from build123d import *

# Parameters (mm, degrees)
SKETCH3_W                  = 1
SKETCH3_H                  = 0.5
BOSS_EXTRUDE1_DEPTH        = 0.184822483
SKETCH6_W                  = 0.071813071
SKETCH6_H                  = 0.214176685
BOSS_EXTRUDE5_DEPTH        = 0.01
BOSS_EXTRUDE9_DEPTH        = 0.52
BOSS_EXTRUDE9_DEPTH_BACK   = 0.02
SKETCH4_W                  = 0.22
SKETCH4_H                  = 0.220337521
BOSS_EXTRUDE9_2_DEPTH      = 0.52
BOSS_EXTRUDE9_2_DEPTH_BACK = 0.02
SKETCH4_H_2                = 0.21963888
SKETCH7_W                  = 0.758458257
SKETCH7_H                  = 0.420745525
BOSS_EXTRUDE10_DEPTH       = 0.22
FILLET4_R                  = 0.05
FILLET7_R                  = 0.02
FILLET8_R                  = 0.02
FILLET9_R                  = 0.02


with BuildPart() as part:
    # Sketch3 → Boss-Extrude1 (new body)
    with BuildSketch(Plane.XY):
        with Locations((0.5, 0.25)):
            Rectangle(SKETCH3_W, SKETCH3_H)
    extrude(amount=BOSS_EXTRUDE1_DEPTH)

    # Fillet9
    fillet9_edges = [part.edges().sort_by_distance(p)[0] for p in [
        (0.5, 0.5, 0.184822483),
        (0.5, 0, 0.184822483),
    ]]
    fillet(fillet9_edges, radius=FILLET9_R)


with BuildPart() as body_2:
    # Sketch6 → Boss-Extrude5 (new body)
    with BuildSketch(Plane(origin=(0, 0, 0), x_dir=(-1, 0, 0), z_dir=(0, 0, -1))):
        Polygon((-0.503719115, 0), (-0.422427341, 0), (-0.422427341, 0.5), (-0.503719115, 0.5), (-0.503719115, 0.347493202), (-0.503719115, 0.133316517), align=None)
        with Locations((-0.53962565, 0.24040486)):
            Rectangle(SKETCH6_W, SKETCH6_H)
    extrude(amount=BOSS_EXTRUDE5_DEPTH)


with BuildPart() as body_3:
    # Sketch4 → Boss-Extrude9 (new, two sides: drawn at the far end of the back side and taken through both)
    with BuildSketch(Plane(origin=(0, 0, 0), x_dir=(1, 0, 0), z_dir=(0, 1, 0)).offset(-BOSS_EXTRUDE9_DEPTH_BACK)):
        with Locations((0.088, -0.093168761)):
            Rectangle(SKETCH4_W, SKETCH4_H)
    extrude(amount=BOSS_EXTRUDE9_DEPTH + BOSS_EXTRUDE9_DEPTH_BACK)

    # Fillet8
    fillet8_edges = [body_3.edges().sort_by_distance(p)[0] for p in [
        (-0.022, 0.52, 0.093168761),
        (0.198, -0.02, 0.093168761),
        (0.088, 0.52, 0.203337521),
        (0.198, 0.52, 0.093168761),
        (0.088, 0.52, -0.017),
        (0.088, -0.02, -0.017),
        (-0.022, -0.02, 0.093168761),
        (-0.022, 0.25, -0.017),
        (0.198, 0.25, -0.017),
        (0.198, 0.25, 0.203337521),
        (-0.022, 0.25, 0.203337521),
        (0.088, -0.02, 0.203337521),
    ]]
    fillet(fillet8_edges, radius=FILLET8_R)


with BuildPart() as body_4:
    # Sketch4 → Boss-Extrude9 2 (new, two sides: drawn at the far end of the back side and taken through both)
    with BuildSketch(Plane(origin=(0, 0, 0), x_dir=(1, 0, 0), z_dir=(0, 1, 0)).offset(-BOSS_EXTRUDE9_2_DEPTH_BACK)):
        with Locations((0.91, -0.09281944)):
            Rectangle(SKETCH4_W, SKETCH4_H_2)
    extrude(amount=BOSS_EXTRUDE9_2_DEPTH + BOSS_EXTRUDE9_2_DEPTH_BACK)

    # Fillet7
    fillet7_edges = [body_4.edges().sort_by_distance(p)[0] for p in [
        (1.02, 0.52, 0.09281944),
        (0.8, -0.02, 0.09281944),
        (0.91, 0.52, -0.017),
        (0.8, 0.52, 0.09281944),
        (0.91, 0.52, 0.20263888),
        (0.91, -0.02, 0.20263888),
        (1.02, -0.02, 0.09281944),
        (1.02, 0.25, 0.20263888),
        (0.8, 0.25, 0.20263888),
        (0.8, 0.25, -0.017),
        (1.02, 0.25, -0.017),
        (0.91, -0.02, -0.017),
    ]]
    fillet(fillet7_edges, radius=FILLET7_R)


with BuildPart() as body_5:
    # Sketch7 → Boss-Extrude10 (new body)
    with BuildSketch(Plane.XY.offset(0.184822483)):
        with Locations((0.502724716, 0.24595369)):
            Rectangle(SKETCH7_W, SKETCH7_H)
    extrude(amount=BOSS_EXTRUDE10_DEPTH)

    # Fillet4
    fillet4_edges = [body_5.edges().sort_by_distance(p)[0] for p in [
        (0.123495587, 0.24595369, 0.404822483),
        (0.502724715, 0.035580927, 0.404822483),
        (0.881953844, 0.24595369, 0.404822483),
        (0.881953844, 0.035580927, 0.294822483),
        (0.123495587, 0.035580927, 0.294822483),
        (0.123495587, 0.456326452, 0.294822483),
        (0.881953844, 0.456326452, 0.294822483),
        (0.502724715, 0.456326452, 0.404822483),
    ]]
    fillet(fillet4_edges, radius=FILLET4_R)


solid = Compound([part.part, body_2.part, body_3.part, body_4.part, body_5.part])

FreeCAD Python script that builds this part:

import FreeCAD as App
import Part
import Sketcher
from FreeCAD import Vector


def edges_at(feature, points):
    """Names of the edges that pass closest to the given points."""
    edges = feature.Shape.Edges
    near = lambda p: min(range(len(edges)), key=lambda i: edges[i].distToShape(Part.Vertex(*p))[0])
    return sorted({f"Edge{near(p) + 1}" for p in points})

doc = App.newDocument("Part")
body = doc.addObject("PartDesign::Body", "Body")

# Sketch on XY plane
sketch1 = doc.addObject("Sketcher::SketchObject", "Sketch")
body.addObject(sketch1)
sketch1.AttachmentSupport = (doc.XY_Plane, [""])
sketch1.MapMode = "FlatFace"
sketch1.addGeometry(Part.LineSegment(Vector(0, 0.5, 0), Vector(0, 0, 0)), False)
sketch1.addGeometry(Part.LineSegment(Vector(0, 0, 0), Vector(1, 0, 0)), False)
sketch1.addGeometry(Part.LineSegment(Vector(1, 0, 0), Vector(1, 0.5, 0)), False)
sketch1.addGeometry(Part.LineSegment(Vector(1, 0.5, 0), Vector(0, 0.5, 0)), False)
sketch1.addConstraint(Sketcher.Constraint("Coincident", 0, 2, 1, 1))
sketch1.addConstraint(Sketcher.Constraint("Coincident", 1, 2, 2, 1))
sketch1.addConstraint(Sketcher.Constraint("Coincident", 2, 2, 3, 1))
sketch1.addConstraint(Sketcher.Constraint("Coincident", 3, 2, 0, 1))
sketch1.addConstraint(Sketcher.Constraint("Vertical", 0))
sketch1.addConstraint(Sketcher.Constraint("Horizontal", 1))
sketch1.addConstraint(Sketcher.Constraint("Vertical", 2))
sketch1.addConstraint(Sketcher.Constraint("Horizontal", 3))
sketch1.addConstraint(Sketcher.Constraint("Coincident", 0, 2, -1, 1))
sketch1.addConstraint(Sketcher.Constraint("DistanceX", 1, 1, 1, 2, 1.0))
sketch1.addConstraint(Sketcher.Constraint("DistanceY", 0, 2, 0, 1, 0.5))
pad1 = doc.addObject("PartDesign::Pad", "Pad")
body.addObject(pad1)
pad1.Profile = sketch1
pad1.Length = 0.184822
doc.recompute()

fillet = doc.addObject("PartDesign::Fillet", "Fillet")
body.addObject(fillet)
fillet.Base = (pad1, edges_at(pad1, [(0.5, 0.5, 0.185), (0.5, 0, 0.185)]))
fillet.Radius = 0.02
body2 = doc.addObject("PartDesign::Body", "Body001")

# Sketch on XY plane
sketch2 = doc.addObject("Sketcher::SketchObject", "Sketch001")
body2.addObject(sketch2)
sketch2.AttachmentSupport = (doc.getObject("XY_Plane001"), [""])
sketch2.MapMode = "FlatFace"
sketch2.addGeometry(Part.LineSegment(Vector(0.5, 0, 0), Vector(0.42, 0, 0)), False)
sketch2.addGeometry(Part.LineSegment(Vector(0.42, 0, 0), Vector(0.42, 0.5, 0)), False)
sketch2.addGeometry(Part.LineSegment(Vector(0.42, 0.5, 0), Vector(0.5, 0.5, 0)), False)
sketch2.addGeometry(Part.LineSegment(Vector(0.5, 0.5, 0), Vector(0.5, 0.35, 0)), False)
sketch2.addGeometry(Part.LineSegment(Vector(0.5, 0.35, 0), Vector(0.58, 0.35, 0)), False)
sketch2.addGeometry(Part.LineSegment(Vector(0.58, 0.35, 0), Vector(0.58, 0.13, 0)), False)
sketch2.addGeometry(Part.LineSegment(Vector(0.58, 0.13, 0), Vector(0.5, 0.13, 0)), False)
sketch2.addGeometry(Part.LineSegment(Vector(0.5, 0.13, 0), Vector(0.5, 0, 0)), False)
sketch2.addConstraint(Sketcher.Constraint("Coincident", 0, 2, 1, 1))
sketch2.addConstraint(Sketcher.Constraint("Coincident", 1, 2, 2, 1))
sketch2.addConstraint(Sketcher.Constraint("Coincident", 2, 2, 3, 1))
sketch2.addConstraint(Sketcher.Constraint("Coincident", 3, 2, 4, 1))
sketch2.addConstraint(Sketcher.Constraint("Coincident", 4, 2, 5, 1))
sketch2.addConstraint(Sketcher.Constraint("Coincident", 5, 2, 6, 1))
sketch2.addConstraint(Sketcher.Constraint("Coincident", 6, 2, 7, 1))
sketch2.addConstraint(Sketcher.Constraint("Coincident", 7, 2, 0, 1))
sketch2.addConstraint(Sketcher.Constraint("Horizontal", 0))
sketch2.addConstraint(Sketcher.Constraint("Vertical", 1))
sketch2.addConstraint(Sketcher.Constraint("Horizontal", 2))
sketch2.addConstraint(Sketcher.Constraint("Vertical", 3))
sketch2.addConstraint(Sketcher.Constraint("Horizontal", 4))
sketch2.addConstraint(Sketcher.Constraint("Vertical", 5))
sketch2.addConstraint(Sketcher.Constraint("Horizontal", 6))
sketch2.addConstraint(Sketcher.Constraint("Vertical", 7))
sketch2.addConstraint(Sketcher.Constraint("PointOnObject", 0, 2, -1))
sketch2.addConstraint(Sketcher.Constraint("Vertical", 3, 2, 6, 2))
sketch2.addConstraint(Sketcher.Constraint("DistanceY", 1, 1, 1, 2, 0.5))
sketch2.addConstraint(Sketcher.Constraint("DistanceX", 0, 2, 0, 1, 0.081292))
sketch2.addConstraint(Sketcher.Constraint("DistanceX", 4, 1, 4, 2, 0.071813))
sketch2.addConstraint(Sketcher.Constraint("DistanceY", 3, 2, 3, 1, 0.152507))
sketch2.addConstraint(Sketcher.Constraint("DistanceY", 5, 2, 5, 1, 0.214177))
sketch2.addConstraint(Sketcher.Constraint("DistanceX", -1, 1, 2, 2, 0.503719))
pad2 = doc.addObject("PartDesign::Pad", "Pad001")
body2.addObject(pad2)
pad2.Profile = sketch2
pad2.Length = 0.01
pad2.Reversed = True
body3 = doc.addObject("PartDesign::Body", "Body002")

# Sketch on XZ plane
sketch3 = doc.addObject("Sketcher::SketchObject", "Sketch002")
body3.addObject(sketch3)
sketch3.AttachmentSupport = (doc.getObject("XZ_Plane002"), [""])
sketch3.MapMode = "FlatFace"
sketch3.addGeometry(Part.LineSegment(Vector(-0.02, -0.02, 0), Vector(-0.02, 0.2, 0)), False)
sketch3.addGeometry(Part.LineSegment(Vector(-0.02, 0.2, 0), Vector(0.2, 0.2, 0)), False)
sketch3.addGeometry(Part.LineSegment(Vector(0.2, 0.2, 0), Vector(0.2, -0.02, 0)), False)
sketch3.addGeometry(Part.LineSegment(Vector(0.2, -0.02, 0), Vector(-0.02, -0.02, 0)), False)
sketch3.addConstraint(Sketcher.Constraint("Coincident", 0, 2, 1, 1))
sketch3.addConstraint(Sketcher.Constraint("Coincident", 1, 2, 2, 1))
sketch3.addConstraint(Sketcher.Constraint("Coincident", 2, 2, 3, 1))
sketch3.addConstraint(Sketcher.Constraint("Coincident", 3, 2, 0, 1))
sketch3.addConstraint(Sketcher.Constraint("Vertical", 0))
sketch3.addConstraint(Sketcher.Constraint("Horizontal", 1))
sketch3.addConstraint(Sketcher.Constraint("Vertical", 2))
sketch3.addConstraint(Sketcher.Constraint("Horizontal", 3))
sketch3.addConstraint(Sketcher.Constraint("DistanceX", 1, 1, 1, 2, 0.22))
sketch3.addConstraint(Sketcher.Constraint("DistanceX", 0, 2, -1, 1, 0.022))
sketch3.addConstraint(Sketcher.Constraint("DistanceY", 2, 2, -1, 1, 0.017))
sketch3.addConstraint(Sketcher.Constraint("DistanceY", 0, 1, 0, 2, 0.220338))
pad3 = doc.addObject("PartDesign::Pad", "Pad002")
body3.addObject(pad3)
pad3.Profile = sketch3
pad3.Type = "TwoLengths"
pad3.Length = 0.52
pad3.Length2 = 0.02
pad3.Reversed = True
doc.recompute()

fillet2 = doc.addObject("PartDesign::Fillet", "Fillet001")
body3.addObject(fillet2)
fillet2.Base = (pad3, ["Edge1"])
fillet2.UseAllEdges = True
fillet2.Radius = 0.02
body4 = doc.addObject("PartDesign::Body", "Body003")

# Sketch on XZ plane
sketch4 = doc.addObject("Sketcher::SketchObject", "Sketch003")
body4.addObject(sketch4)
sketch4.AttachmentSupport = (doc.getObject("XZ_Plane003"), [""])
sketch4.MapMode = "FlatFace"
sketch4.addGeometry(Part.LineSegment(Vector(0.8, -0.02, 0), Vector(0.8, 0.2, 0)), False)
sketch4.addGeometry(Part.LineSegment(Vector(0.8, 0.2, 0), Vector(1.02, 0.2, 0)), False)
sketch4.addGeometry(Part.LineSegment(Vector(1.02, 0.2, 0), Vector(1.02, -0.02, 0)), False)
sketch4.addGeometry(Part.LineSegment(Vector(1.02, -0.02, 0), Vector(0.8, -0.02, 0)), False)
sketch4.addConstraint(Sketcher.Constraint("Coincident", 0, 2, 1, 1))
sketch4.addConstraint(Sketcher.Constraint("Coincident", 1, 2, 2, 1))
sketch4.addConstraint(Sketcher.Constraint("Coincident", 2, 2, 3, 1))
sketch4.addConstraint(Sketcher.Constraint("Coincident", 3, 2, 0, 1))
sketch4.addConstraint(Sketcher.Constraint("Vertical", 0))
sketch4.addConstraint(Sketcher.Constraint("Horizontal", 1))
sketch4.addConstraint(Sketcher.Constraint("Vertical", 2))
sketch4.addConstraint(Sketcher.Constraint("Horizontal", 3))
sketch4.addConstraint(Sketcher.Constraint("DistanceX", 1, 1, 1, 2, 0.22))
sketch4.addConstraint(Sketcher.Constraint("DistanceX", -1, 1, 0, 2, 0.8))
sketch4.addConstraint(Sketcher.Constraint("DistanceY", 2, 2, -1, 1, 0.017))
sketch4.addConstraint(Sketcher.Constraint("DistanceY", 0, 1, 0, 2, 0.219639))
pad4 = doc.addObject("PartDesign::Pad", "Pad003")
body4.addObject(pad4)
pad4.Profile = sketch4
pad4.Type = "TwoLengths"
pad4.Length = 0.52
pad4.Length2 = 0.02
pad4.Reversed = True
doc.recompute()

fillet3 = doc.addObject("PartDesign::Fillet", "Fillet002")
body4.addObject(fillet3)
fillet3.Base = (pad4, ["Edge1"])
fillet3.UseAllEdges = True
fillet3.Radius = 0.02
body5 = doc.addObject("PartDesign::Body", "Body004")

# Sketch on XY plane
sketch5 = doc.addObject("Sketcher::SketchObject", "Sketch004")
body5.addObject(sketch5)
sketch5.AttachmentSupport = (doc.getObject("XY_Plane004"), [""])
sketch5.MapMode = "FlatFace"
sketch5.AttachmentOffset = App.Placement(Vector(0, 0, 0.184822), App.Rotation())
sketch5.addGeometry(Part.LineSegment(Vector(0.12, 0.46, 0), Vector(0.12, 0.04, 0)), False)
sketch5.addGeometry(Part.LineSegment(Vector(0.12, 0.04, 0), Vector(0.88, 0.04, 0)), False)
sketch5.addGeometry(Part.LineSegment(Vector(0.88, 0.04, 0), Vector(0.88, 0.46, 0)), False)
sketch5.addGeometry(Part.LineSegment(Vector(0.88, 0.46, 0), Vector(0.12, 0.46, 0)), False)
sketch5.addConstraint(Sketcher.Constraint("Coincident", 0, 2, 1, 1))
sketch5.addConstraint(Sketcher.Constraint("Coincident", 1, 2, 2, 1))
sketch5.addConstraint(Sketcher.Constraint("Coincident", 2, 2, 3, 1))
sketch5.addConstraint(Sketcher.Constraint("Coincident", 3, 2, 0, 1))
sketch5.addConstraint(Sketcher.Constraint("Vertical", 0))
sketch5.addConstraint(Sketcher.Constraint("Horizontal", 1))
sketch5.addConstraint(Sketcher.Constraint("Vertical", 2))
sketch5.addConstraint(Sketcher.Constraint("Horizontal", 3))
sketch5.addConstraint(Sketcher.Constraint("DistanceX", 1, 1, 1, 2, 0.758458))
sketch5.addConstraint(Sketcher.Constraint("DistanceY", 0, 2, 0, 1, 0.420746))
sketch5.addConstraint(Sketcher.Constraint("DistanceY", -1, 1, 0, 2, 0.035581))
sketch5.addConstraint(Sketcher.Constraint("DistanceX", -1, 1, 0, 2, 0.123496))
pad5 = doc.addObject("PartDesign::Pad", "Pad004")
body5.addObject(pad5)
pad5.Profile = sketch5
pad5.Length = 0.22
doc.recompute()

fillet4 = doc.addObject("PartDesign::Fillet", "Fillet003")
body5.addObject(fillet4)
fillet4.Base = (pad5, edges_at(pad5, [
    (0.123, 0.246, 0.405),
    (0.503, 0.036, 0.405),
    (0.882, 0.246, 0.405),
    (0.882, 0.036, 0.295),
    (0.123, 0.036, 0.295),
    (0.123, 0.456, 0.295),
    (0.882, 0.456, 0.295),
    (0.503, 0.456, 0.405),
]))
fillet4.Radius = 0.05

doc.recompute()
